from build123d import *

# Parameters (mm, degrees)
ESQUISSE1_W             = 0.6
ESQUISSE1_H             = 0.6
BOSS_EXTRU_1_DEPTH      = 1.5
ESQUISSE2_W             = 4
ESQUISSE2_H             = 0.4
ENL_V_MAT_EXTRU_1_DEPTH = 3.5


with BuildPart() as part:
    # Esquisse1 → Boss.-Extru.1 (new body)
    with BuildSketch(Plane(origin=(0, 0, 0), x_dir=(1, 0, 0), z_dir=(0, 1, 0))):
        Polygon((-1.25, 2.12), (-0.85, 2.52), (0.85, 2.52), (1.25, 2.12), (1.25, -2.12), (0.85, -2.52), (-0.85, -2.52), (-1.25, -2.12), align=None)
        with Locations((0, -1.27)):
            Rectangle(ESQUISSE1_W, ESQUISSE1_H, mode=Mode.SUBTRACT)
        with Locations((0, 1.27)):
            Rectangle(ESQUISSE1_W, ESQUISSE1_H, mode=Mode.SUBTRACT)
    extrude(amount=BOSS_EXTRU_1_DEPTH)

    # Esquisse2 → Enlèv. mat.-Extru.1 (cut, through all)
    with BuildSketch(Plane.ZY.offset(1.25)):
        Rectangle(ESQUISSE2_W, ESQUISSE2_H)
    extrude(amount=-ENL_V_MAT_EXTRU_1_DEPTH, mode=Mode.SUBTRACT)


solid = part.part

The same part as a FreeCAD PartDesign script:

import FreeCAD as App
import Part
import Sketcher

V = App.Vector
Q = App.Units.Quantity


def add_polygon(sketch, points):
    """Adds a closed chain of lines whose ends are joined by coincident constraints."""
    first, n = sketch.GeometryCount, len(points)
    for a, b in zip(points, points[1:] + points[:1]):
        sketch.addGeometry(Part.LineSegment(App.Vector(*a, 0), App.Vector(*b, 0)), False)
    for i in range(n):
        sketch.addConstraint(Sketcher.Constraint("Coincident", first + i, 2, first + (i + 1) % n, 1))

doc = App.newDocument("Part")
params = doc.addObject("Spreadsheet::Sheet", "Params")
for row, (alias, value) in enumerate([
    ("sketch1_width", "1.7 mm"),
    ("sketch1_width2", "0.6 mm"),
    ("sketch1_height", "4.24 mm"),
    ("pad1_length", "1.5 mm"),
    ("sketch2_height", "4 mm"),
    ("sketch2_width", "0.4 mm"),
], start=1):
    params.set(f"A{row}", alias)
    params.set(f"B{row}", "=" + value)
    params.setAlias(f"B{row}", alias)

body = doc.addObject("PartDesign::Body", "Body")

# Sketch on XZ plane
sketch1 = body.newObject("Sketcher::SketchObject", "Sketch")
sketch1.AttachmentSupport = (doc.getObject("XZ_Plane"), [""])
sketch1.MapMode = "FlatFace"
add_polygon(sketch1, [(-0.8, -2.5), (-1.2, -2.1), (-1.2, 2.1), (-0.8, 2.5), (0.8, 2.5), (1.2, 2.1), (1.2, -2.1), (0.8, -2.5)])  # lines 0-7
add_polygon(sketch1, [(-0.3, 1.6), (-0.3, 1), (0.3, 1), (0.3, 1.6)])  # lines 8-11
add_polygon(sketch1, [(-0.3, -1), (-0.3, -1.6), (0.3, -1.6), (0.3, -1)])  # lines 12-15
sketch1.addConstraint([
    Sketcher.Constraint("Vertical", 1),
    Sketcher.Constraint("Horizontal", 3),
    Sketcher.Constraint("Vertical", 5),
    Sketcher.Constraint("Horizontal", 7),
    Sketcher.Constraint("Vertical", 8),
    Sketcher.Constraint("Horizontal", 9),
    Sketcher.Constraint("Vertical", 10),
    Sketcher.Constraint("Horizontal", 11),
    Sketcher.Constraint("Vertical", 12),
    Sketcher.Constraint("Horizontal", 13),
    Sketcher.Constraint("Vertical", 14),
    Sketcher.Constraint("Horizontal", 15),
    Sketcher.Constraint("Symmetric", 0, 2, 4, 2, -1, 1),
    Sketcher.Constraint("Symmetric", 2, 2, 6, 2, -1, 1),
    Sketcher.Constraint("Symmetric", 10, 2, 12, 2, -1, 1),
    Sketcher.Constraint("Symmetric", 8, 2, 14, 2, -1, 1),
    Sketcher.Constraint("Perpendicular", 0, 2),
    Sketcher.Constraint("Perpendicular", 2, 4),
    Sketcher.Constraint("Perpendicular", 4, 6),
    Sketcher.Constraint("Horizontal", 1, 2, 4, 2),
    Sketcher.Constraint("Vertical", 3, 2, 6, 2),
    Sketcher.Constraint("Vertical", 11, 2, 12, 2),
    Sketcher.Constraint("Equal", 15, 8),
    Sketcher.Constraint("DistanceX", 3, 1, 3, 2, Q("1.7 mm")),
    Sketcher.Constraint("DistanceX", 9, 1, 9, 2, Q("0.6 mm")),
    Sketcher.Constraint("DistanceY", 1, 1, 1, 2, Q("4.24 mm")),
    Sketcher.Constraint("DistanceX", 1, 2, 2, 2, Q("0.4 mm")),
    Sketcher.Constraint("DistanceY", -1, 1, 8, 2, Q("0.97 mm")),
])
sketch1.setExpression("Constraints[39]", "Params.sketch1_width")
sketch1.setExpression("Constraints[40]", "Params.sketch1_width2")
sketch1.setExpression("Constraints[41]", "Params.sketch1_height")
pad1 = body.newObject("PartDesign::Pad", "Pad")
pad1.Profile = sketch1
pad1.setExpression("Length", "Params.pad1_length")
pad1.Reversed = True

# Sketch on YZ plane
sketch2 = body.newObject("Sketcher::SketchObject", "Sketch001")
sketch2.AttachmentSupport = (doc.getObject("YZ_Plane"), [""])
sketch2.MapMode = "FlatFace"
sketch2.AttachmentOffset = App.Placement(V(0, 0, -1.25), App.Rotation())
add_polygon(sketch2, [(0.2, -2), (-0.2, -2), (-0.2, 2), (0.2, 2)])  # lines 0-3
sketch2.addConstraint([
    Sketcher.Constraint("Horizontal", 0),
    Sketcher.Constraint("Vertical", 1),
    Sketcher.Constraint("Horizontal", 2),
    Sketcher.Constraint("Vertical", 3),
    Sketcher.Constraint("Symmetric", 0, 2, 2, 2, -1, 1),
    Sketcher.Constraint("DistanceY", 1, 1, 1, 2, Q("4 mm")),
    Sketcher.Constraint("DistanceX", 0, 2, 0, 1, Q("0.4 mm")),
])
sketch2.setExpression("Constraints[9]", "Params.sketch2_height")
sketch2.setExpression("Constraints[10]", "Params.sketch2_width")
pocket1 = body.newObject("PartDesign::Pocket", "Pocket")
pocket1.Profile = sketch2
pocket1.Type = "ThroughAll"
pocket1.Reversed = True

doc.recompute()
